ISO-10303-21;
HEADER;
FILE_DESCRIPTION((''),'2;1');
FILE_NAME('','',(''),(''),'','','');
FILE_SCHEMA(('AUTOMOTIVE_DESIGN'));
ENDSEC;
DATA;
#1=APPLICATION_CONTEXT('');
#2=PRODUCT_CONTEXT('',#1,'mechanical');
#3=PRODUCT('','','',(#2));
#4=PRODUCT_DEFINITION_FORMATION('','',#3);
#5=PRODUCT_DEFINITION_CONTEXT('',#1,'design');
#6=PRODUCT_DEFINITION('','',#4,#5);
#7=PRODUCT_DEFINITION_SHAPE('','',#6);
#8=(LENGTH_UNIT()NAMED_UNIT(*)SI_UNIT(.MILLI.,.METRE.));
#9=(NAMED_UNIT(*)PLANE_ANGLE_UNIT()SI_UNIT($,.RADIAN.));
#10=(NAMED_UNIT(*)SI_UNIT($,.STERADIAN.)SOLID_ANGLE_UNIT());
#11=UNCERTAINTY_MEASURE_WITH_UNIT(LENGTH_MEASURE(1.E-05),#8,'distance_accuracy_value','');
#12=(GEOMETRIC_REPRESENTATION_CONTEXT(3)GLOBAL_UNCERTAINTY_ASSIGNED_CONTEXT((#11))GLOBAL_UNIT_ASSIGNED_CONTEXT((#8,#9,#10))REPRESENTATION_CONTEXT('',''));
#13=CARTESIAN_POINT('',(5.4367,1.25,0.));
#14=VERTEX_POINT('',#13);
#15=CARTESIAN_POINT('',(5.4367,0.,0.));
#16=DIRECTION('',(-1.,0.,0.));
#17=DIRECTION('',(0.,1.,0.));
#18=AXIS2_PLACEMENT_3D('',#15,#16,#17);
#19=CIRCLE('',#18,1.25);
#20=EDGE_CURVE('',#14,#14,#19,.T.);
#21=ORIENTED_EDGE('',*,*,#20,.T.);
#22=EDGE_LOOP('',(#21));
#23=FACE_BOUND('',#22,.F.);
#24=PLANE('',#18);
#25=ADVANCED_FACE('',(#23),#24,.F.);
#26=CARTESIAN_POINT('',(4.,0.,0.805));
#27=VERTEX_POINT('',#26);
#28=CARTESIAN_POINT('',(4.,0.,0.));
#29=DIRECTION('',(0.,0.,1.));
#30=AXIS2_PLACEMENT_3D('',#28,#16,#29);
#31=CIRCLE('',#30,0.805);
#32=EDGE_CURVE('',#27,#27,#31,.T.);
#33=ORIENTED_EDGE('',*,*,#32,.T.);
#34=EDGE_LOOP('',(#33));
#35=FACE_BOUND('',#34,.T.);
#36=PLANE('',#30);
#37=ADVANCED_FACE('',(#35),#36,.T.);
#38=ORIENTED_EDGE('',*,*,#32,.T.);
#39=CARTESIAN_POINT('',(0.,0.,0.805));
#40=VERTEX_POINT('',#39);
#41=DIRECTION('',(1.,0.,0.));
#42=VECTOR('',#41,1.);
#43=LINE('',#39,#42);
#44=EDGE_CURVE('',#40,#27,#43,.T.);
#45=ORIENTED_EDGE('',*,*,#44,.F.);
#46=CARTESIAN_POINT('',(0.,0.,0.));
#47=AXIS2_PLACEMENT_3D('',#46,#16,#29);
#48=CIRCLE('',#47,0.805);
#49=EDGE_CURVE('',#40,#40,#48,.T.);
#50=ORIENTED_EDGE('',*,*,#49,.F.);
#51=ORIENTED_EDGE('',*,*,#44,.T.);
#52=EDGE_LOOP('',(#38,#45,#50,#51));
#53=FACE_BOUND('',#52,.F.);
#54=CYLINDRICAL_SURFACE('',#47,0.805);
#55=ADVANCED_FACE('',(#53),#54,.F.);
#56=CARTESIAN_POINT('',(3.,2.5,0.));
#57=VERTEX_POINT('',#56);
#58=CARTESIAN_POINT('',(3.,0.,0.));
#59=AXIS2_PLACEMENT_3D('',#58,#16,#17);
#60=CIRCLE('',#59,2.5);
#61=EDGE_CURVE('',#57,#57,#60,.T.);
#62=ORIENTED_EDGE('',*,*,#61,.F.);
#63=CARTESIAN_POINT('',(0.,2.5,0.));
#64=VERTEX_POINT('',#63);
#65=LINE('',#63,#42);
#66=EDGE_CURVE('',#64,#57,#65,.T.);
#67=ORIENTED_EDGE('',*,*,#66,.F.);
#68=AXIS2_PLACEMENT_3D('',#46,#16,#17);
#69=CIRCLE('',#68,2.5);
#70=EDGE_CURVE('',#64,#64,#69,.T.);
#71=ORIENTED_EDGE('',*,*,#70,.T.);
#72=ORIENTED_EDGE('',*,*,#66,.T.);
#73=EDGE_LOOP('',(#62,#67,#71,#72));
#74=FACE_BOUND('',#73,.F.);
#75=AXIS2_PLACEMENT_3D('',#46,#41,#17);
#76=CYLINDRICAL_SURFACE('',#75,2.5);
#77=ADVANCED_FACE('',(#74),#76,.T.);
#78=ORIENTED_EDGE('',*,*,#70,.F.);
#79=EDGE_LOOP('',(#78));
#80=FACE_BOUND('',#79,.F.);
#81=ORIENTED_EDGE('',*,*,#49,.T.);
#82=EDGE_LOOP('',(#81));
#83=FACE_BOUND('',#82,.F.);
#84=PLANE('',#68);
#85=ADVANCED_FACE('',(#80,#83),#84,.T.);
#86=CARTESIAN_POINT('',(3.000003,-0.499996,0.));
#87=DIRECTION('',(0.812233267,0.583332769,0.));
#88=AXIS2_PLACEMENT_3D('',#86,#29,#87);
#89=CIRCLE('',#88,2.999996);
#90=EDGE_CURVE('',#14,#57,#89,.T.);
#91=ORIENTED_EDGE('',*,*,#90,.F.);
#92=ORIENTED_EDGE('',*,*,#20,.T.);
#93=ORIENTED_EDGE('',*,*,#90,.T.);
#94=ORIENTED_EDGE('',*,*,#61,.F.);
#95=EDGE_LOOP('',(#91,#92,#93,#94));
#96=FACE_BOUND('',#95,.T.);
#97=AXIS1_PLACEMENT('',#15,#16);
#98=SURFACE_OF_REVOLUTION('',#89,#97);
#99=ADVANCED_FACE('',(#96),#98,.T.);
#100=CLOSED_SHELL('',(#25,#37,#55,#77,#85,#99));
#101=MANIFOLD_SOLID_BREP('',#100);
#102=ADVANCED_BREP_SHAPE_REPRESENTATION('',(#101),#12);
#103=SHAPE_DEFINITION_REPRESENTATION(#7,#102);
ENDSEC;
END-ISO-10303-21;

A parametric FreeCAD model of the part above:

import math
import FreeCAD as App
import Part
import Sketcher

doc = App.newDocument("Part")
body = doc.addObject("PartDesign::Body", "Body")

# Sketch on XY plane
sketch1 = body.newObject("Sketcher::SketchObject", "Sketch")
sketch1.AttachmentSupport = (doc.getObject("XY_Plane"), [""])
sketch1.MapMode = "FlatFace"
sketch1.addGeometry(Part.LineSegment(App.Vector(0, 2.5, 0), App.Vector(0, 0, 0)), False)
sketch1.addGeometry(Part.LineSegment(App.Vector(0, 0, 0), App.Vector(5.4, 0, 0)), False)
sketch1.addGeometry(Part.LineSegment(App.Vector(5.4, 0, 0), App.Vector(5.4, 1.2, 0)), False)
sketch1.addGeometry(Part.ArcOfCircle(Part.Circle(App.Vector(3, -0.5, 0), App.Vector(0, 0, 1), 3), math.radians(36), math.radians(90)), False)
sketch1.addGeometry(Part.LineSegment(App.Vector(3, 2.5, 0), App.Vector(0, 2.5, 0)), False)
sketch1.addConstraint(Sketcher.Constraint("Coincident", 0, 2, 1, 1))
sketch1.addConstraint(Sketcher.Constraint("Coincident", 1, 2, 2, 1))
sketch1.addConstraint(Sketcher.Constraint("Coincident", 2, 2, 3, 1))
sketch1.addConstraint(Sketcher.Constraint("Tangent", 3, 2, 4, 1))
sketch1.addConstraint(Sketcher.Constraint("Coincident", 4, 2, 0, 1))
sketch1.addConstraint(Sketcher.Constraint("Vertical", 0))
sketch1.addConstraint(Sketcher.Constraint("Horizontal", 1))
sketch1.addConstraint(Sketcher.Constraint("Vertical", 2))
sketch1.addConstraint(Sketcher.Constraint("Horizontal", 4))
sketch1.addConstraint(Sketcher.Constraint("Coincident", 0, 2, -1, 1))
sketch1.addConstraint(Sketcher.Constraint("Radius", 3, 3.0))
sketch1.addConstraint(Sketcher.Constraint("DistanceX", 4, 2, 4, 1, 3.0))
sketch1.addConstraint(Sketcher.Constraint("DistanceY", 0, 2, 0, 1, 2.5))
sketch1.addConstraint(Sketcher.Constraint("DistanceX", 1, 1, 1, 2, 5.4367))
revolution = body.newObject("PartDesign::Revolution", "Revolution")
revolution.Profile = sketch1
revolution.ReferenceAxis = (sketch1, ["H_Axis"])
revolution.Angle = 360

# Sketch on YZ plane
sketch2 = body.newObject("Sketcher::SketchObject", "Sketch001")
sketch2.AttachmentSupport = (doc.getObject("YZ_Plane"), [""])
sketch2.MapMode = "FlatFace"
sketch2.addGeometry(Part.Circle(App.Vector(0, 0, 0), App.Vector(0, 0, 1), 0.8), False)
sketch2.addConstraint(Sketcher.Constraint("Coincident", 0, 3, -1, 1))
sketch2.addConstraint(Sketcher.Constraint("Diameter", 0, 1.61))
pocket1 = body.newObject("PartDesign::Pocket", "Pocket")
pocket1.Profile = sketch2
pocket1.Length = 4
pocket1.Reversed = True

doc.recompute()
